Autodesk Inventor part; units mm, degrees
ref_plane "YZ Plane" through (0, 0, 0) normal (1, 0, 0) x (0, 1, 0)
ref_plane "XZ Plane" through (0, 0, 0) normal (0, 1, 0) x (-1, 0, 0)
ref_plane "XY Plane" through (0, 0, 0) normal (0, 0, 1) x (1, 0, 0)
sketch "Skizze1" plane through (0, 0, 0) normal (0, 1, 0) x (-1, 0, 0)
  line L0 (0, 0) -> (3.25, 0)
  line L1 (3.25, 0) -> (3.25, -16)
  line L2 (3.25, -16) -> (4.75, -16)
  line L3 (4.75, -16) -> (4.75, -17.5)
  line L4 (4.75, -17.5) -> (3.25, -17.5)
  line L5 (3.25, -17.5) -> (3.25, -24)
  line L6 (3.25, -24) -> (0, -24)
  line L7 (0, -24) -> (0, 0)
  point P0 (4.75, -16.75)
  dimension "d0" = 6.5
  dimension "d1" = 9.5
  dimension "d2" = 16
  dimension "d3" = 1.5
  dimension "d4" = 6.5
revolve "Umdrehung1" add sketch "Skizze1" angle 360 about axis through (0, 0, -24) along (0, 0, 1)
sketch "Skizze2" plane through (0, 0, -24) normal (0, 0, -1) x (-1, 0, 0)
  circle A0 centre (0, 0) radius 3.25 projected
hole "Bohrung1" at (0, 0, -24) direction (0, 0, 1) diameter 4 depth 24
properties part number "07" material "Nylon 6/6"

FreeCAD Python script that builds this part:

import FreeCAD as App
import Part
import Sketcher

V = App.Vector
Q = App.Units.Quantity

doc = App.newDocument("Part")
body = doc.addObject("PartDesign::Body", "Body")

sketch1 = body.newObject("Sketcher::SketchObject", "Sketch")
sketch1.AttachmentSupport = (doc.getObject("XZ_Plane"), [""])
sketch1.MapMode = "FlatFace"
sketch1.addGeometry([
    Part.LineSegment(V(-3.25, 0, 0), V(0, 0, 0)),
    Part.LineSegment(V(0, 0, 0), V(0, -24, 0)),
    Part.LineSegment(V(0, -24, 0), V(-3.25, -24, 0)),
    Part.LineSegment(V(-3.25, -24, 0), V(-3.25, -17.5, 0)),
    Part.LineSegment(V(-3.25, -17.5, 0), V(-4.75, -17.5, 0)),
    Part.LineSegment(V(-4.75, -17.5, 0), V(-4.75, -16, 0)),
    Part.LineSegment(V(-4.75, -16, 0), V(-3.25, -16, 0)),
    Part.LineSegment(V(-3.25, -16, 0), V(-3.25, 0, 0)),
], False)
sketch1.addConstraint([
    Sketcher.Constraint("Coincident", 0, 2, 1, 1),
    Sketcher.Constraint("Coincident", 1, 2, 2, 1),
    Sketcher.Constraint("Coincident", 2, 2, 3, 1),
    Sketcher.Constraint("Coincident", 3, 2, 4, 1),
    Sketcher.Constraint("Coincident", 4, 2, 5, 1),
    Sketcher.Constraint("Coincident", 5, 2, 6, 1),
    Sketcher.Constraint("Coincident", 6, 2, 7, 1),
    Sketcher.Constraint("Coincident", 7, 2, 0, 1),
    Sketcher.Constraint("Horizontal", 0),
    Sketcher.Constraint("Vertical", 1),
    Sketcher.Constraint("Horizontal", 2),
    Sketcher.Constraint("Vertical", 3),
    Sketcher.Constraint("Horizontal", 4),
    Sketcher.Constraint("Vertical", 5),
    Sketcher.Constraint("Horizontal", 6),
    Sketcher.Constraint("Vertical", 7),
    Sketcher.Constraint("Coincident", 0, 2, -1, 1),
    Sketcher.Constraint("Vertical", 3, 2, 6, 2),
    Sketcher.Constraint("Equal", 6, 5),
    Sketcher.Constraint("DistanceY", 7, 1, 7, 2, Q("16 mm")),
    Sketcher.Constraint("DistanceX", 4, 2, 4, 1, Q("1.5 mm")),
    Sketcher.Constraint("DistanceY", 3, 1, 3, 2, Q("6.5 mm")),
    Sketcher.Constraint("DistanceX", 0, 1, 0, 2, Q("3.25 mm")),
])
revolution = body.newObject("PartDesign::Revolution", "Revolution")
revolution.Profile = sketch1
revolution.ReferenceAxis = (sketch1, ["V_Axis"])
revolution.Angle = 360

sketch2 = body.newObject("Sketcher::SketchObject", "Sketch001")
sketch2.AttachmentSupport = (doc.getObject("XY_Plane"), [""])
sketch2.MapMode = "FlatFace"
sketch2.AttachmentOffset = App.Placement(V(0, 0, -24), App.Rotation())
sketch2.addGeometry(Part.Circle(V(0, 0, 0), V(0, 0, 1), 2), False)
sketch2.addConstraint([
    Sketcher.Constraint("Coincident", 0, 3, -1, 1),
    Sketcher.Constraint("Diameter", 0, Q("4 mm")),
])
doc.recompute()
hole = body.newObject("PartDesign::Hole", "Hole")
hole.Profile = sketch2
hole.ThreadType = "None"
hole.Diameter = 4
hole.DepthType = "Dimension"
hole.Depth = 24
hole.DrillPoint = "Flat"
hole.Reversed = True

doc.recompute()
